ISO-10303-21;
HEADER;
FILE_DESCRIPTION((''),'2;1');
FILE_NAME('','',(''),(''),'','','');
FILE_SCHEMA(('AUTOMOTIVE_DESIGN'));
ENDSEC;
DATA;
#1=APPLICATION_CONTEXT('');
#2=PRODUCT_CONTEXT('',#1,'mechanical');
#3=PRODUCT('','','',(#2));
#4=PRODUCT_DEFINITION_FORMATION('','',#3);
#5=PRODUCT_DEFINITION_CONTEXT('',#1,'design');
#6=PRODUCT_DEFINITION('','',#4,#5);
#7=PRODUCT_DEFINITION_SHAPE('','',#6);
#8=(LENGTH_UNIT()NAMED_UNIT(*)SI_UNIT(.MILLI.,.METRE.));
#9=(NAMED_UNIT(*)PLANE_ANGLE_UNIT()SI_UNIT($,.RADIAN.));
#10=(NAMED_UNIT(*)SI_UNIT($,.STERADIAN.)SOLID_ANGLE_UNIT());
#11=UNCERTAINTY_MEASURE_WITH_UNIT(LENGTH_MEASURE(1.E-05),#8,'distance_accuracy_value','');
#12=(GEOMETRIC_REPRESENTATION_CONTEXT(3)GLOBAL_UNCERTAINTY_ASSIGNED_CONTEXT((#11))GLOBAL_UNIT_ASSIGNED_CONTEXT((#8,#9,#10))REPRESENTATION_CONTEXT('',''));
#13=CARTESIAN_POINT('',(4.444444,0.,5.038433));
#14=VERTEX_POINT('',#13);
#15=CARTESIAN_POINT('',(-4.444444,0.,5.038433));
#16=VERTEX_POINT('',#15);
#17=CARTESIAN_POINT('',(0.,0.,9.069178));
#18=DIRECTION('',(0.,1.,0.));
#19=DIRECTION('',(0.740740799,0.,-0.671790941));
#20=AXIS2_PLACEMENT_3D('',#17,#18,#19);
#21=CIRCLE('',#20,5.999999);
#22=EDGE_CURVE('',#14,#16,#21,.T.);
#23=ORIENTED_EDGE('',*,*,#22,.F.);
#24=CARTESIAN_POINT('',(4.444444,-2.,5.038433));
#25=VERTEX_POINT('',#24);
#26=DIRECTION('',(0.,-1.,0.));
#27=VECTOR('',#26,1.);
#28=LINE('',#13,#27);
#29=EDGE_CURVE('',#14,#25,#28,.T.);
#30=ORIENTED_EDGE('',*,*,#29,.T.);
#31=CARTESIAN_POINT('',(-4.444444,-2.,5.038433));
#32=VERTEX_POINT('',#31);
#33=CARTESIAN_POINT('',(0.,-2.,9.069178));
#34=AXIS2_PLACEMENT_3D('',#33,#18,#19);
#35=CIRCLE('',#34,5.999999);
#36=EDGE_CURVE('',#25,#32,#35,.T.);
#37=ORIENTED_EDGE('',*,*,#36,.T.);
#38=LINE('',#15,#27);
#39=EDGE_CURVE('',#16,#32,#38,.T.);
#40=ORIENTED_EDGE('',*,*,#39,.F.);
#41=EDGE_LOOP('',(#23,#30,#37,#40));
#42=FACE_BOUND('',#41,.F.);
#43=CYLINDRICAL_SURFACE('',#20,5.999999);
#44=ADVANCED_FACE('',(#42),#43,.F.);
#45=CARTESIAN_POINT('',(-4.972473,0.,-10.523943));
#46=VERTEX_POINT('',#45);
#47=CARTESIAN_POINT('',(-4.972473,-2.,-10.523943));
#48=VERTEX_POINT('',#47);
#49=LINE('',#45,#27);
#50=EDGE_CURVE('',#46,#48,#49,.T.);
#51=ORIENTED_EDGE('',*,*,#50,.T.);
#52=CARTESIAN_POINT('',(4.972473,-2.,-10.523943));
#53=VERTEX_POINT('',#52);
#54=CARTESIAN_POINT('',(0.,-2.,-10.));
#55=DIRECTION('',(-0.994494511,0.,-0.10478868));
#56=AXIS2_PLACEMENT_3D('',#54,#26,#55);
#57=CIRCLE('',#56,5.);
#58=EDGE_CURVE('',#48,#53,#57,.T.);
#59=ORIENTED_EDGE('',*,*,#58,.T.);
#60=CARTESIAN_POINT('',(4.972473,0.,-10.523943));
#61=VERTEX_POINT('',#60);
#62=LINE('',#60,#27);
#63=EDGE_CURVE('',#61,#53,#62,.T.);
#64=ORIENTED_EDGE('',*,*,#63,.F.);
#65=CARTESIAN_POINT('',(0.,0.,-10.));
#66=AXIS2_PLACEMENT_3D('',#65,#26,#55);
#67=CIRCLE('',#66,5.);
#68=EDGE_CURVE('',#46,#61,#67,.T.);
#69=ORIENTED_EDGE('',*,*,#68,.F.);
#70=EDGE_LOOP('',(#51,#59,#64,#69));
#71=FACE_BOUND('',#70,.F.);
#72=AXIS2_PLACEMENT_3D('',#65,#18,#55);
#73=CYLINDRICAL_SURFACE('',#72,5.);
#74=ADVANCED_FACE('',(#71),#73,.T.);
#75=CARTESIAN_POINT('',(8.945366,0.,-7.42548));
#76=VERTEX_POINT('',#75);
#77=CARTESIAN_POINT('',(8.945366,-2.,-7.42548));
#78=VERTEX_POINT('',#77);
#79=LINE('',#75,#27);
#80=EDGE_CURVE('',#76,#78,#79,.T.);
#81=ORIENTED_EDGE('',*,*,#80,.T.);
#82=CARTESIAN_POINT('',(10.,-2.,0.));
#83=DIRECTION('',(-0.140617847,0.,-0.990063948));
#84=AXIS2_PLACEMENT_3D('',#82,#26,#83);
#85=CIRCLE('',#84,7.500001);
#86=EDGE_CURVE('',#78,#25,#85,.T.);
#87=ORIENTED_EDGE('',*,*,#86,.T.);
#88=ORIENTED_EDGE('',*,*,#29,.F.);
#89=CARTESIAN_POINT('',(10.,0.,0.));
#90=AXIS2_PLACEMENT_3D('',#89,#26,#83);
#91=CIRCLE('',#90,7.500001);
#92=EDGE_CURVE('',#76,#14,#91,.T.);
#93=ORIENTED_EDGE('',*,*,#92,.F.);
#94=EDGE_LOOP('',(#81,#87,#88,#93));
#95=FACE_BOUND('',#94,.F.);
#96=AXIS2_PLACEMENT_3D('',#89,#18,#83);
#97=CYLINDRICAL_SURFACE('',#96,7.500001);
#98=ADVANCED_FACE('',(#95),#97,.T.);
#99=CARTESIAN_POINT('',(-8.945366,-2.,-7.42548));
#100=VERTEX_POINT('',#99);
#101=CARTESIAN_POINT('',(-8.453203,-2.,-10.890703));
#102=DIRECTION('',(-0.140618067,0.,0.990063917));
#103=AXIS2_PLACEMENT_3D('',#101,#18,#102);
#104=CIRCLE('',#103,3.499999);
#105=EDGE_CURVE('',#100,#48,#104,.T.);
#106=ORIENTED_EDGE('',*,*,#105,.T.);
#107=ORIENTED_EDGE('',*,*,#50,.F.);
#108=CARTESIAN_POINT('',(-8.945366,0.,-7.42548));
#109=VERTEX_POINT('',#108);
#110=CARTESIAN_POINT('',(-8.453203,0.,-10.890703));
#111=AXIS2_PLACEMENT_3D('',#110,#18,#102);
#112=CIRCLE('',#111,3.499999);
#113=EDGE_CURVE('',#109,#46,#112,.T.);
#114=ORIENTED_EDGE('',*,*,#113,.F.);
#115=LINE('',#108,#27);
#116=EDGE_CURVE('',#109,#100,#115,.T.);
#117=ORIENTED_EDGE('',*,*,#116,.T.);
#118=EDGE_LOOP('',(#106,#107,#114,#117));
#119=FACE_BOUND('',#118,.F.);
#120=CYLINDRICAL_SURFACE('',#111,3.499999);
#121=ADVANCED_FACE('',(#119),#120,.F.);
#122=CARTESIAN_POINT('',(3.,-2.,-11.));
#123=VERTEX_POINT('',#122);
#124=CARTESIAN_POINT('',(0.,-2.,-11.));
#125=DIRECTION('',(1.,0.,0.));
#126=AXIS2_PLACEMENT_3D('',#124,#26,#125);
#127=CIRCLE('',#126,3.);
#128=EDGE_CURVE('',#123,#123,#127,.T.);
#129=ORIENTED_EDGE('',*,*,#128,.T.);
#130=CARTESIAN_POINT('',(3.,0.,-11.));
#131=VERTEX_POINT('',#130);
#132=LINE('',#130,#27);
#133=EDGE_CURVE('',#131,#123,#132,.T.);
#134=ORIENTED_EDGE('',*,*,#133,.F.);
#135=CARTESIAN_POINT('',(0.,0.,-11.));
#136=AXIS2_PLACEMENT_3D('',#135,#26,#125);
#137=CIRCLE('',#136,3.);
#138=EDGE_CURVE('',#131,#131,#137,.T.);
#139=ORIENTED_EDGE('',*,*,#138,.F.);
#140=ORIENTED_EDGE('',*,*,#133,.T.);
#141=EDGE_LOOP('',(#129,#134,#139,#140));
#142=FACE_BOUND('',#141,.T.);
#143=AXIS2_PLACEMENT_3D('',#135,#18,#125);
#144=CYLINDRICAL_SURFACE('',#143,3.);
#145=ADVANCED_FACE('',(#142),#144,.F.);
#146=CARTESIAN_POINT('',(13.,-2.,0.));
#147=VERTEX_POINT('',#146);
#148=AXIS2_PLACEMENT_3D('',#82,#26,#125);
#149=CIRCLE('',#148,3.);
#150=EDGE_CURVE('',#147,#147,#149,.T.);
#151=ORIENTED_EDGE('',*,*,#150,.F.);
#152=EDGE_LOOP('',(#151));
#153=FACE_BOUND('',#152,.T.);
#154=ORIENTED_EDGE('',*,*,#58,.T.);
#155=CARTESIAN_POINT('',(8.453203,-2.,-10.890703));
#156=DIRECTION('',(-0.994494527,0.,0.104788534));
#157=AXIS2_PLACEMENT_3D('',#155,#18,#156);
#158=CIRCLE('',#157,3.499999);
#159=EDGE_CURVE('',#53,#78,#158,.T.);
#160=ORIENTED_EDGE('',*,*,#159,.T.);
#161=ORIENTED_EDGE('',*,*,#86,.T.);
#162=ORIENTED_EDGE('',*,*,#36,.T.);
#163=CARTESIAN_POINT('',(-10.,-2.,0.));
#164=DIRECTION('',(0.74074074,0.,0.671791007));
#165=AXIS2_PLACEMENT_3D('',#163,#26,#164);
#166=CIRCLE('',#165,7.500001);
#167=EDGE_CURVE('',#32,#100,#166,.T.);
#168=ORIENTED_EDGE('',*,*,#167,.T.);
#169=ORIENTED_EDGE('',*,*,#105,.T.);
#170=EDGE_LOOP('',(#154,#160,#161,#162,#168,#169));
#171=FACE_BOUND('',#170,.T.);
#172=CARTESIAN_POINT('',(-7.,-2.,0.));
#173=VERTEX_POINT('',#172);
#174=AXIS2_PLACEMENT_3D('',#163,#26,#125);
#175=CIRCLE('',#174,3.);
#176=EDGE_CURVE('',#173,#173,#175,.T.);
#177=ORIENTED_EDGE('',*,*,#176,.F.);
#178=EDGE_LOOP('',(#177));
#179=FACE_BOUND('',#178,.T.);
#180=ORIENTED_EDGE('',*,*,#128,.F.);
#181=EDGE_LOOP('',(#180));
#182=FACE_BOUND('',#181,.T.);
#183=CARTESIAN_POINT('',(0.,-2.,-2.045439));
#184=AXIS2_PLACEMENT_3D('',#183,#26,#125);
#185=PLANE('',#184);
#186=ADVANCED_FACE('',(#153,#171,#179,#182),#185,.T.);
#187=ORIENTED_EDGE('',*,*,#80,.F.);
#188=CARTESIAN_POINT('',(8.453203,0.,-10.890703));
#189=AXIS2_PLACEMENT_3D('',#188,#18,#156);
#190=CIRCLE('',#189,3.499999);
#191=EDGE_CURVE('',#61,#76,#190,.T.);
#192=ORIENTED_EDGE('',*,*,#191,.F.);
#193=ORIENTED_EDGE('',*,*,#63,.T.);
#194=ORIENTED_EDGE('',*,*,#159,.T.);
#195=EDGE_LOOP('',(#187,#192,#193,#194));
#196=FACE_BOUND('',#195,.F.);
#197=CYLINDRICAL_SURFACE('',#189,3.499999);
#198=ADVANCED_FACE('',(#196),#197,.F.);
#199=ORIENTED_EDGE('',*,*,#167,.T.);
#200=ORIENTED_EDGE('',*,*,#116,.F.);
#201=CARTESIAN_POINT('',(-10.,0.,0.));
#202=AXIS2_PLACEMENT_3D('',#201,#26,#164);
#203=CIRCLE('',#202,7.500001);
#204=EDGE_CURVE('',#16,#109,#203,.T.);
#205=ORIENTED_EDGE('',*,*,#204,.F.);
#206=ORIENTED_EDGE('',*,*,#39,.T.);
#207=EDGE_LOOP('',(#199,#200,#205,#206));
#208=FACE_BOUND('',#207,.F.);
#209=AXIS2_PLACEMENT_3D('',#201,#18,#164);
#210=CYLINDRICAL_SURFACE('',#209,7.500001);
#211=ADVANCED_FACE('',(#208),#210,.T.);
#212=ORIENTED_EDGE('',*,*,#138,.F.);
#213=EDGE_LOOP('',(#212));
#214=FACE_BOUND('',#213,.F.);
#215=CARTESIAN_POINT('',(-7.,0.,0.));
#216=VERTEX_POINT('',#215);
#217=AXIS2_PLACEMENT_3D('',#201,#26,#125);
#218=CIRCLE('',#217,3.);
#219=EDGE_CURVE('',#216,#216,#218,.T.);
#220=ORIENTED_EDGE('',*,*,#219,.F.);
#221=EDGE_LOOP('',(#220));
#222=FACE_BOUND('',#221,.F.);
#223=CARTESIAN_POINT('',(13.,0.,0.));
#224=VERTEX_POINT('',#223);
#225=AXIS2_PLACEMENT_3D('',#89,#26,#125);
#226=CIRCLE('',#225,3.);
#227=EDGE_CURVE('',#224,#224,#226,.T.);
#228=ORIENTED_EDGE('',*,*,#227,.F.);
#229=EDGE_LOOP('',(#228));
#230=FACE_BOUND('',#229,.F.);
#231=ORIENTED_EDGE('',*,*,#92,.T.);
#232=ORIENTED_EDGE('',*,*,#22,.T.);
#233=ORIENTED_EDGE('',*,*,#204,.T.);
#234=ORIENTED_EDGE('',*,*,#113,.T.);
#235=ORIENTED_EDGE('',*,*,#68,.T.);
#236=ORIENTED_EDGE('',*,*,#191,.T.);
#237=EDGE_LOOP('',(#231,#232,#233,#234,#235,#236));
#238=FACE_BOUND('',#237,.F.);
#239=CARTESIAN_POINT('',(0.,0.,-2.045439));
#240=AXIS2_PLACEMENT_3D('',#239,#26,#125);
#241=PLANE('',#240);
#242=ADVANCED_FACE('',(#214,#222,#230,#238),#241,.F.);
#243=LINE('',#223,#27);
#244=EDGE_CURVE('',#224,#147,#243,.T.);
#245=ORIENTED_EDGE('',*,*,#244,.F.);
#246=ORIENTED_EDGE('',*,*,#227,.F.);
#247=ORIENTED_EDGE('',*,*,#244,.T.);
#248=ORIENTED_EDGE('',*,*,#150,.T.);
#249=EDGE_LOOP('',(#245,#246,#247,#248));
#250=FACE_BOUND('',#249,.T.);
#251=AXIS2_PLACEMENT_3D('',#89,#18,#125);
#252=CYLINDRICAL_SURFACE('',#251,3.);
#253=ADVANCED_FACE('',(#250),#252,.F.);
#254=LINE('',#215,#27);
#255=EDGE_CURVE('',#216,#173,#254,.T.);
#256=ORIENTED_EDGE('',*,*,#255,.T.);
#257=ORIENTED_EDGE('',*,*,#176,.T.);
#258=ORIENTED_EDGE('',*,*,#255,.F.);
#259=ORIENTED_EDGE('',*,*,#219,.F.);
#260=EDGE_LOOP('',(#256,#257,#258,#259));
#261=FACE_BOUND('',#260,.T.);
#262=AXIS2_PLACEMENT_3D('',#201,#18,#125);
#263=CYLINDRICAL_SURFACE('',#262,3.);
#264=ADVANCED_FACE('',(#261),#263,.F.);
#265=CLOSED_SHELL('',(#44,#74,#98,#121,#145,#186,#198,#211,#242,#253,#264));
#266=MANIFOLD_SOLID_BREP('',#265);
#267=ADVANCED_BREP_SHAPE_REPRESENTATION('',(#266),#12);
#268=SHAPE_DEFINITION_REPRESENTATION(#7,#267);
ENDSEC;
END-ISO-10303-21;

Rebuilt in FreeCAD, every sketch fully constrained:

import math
import FreeCAD as App
import Part
import Sketcher
Q = App.Units.Quantity

doc = App.newDocument("Part")
body = doc.addObject("PartDesign::Body", "Body")

# Sketch on XZ plane
sketch1 = body.newObject("Sketcher::SketchObject", "Sketch")
sketch1.AttachmentSupport = (doc.getObject("XZ_Plane"), [""])
sketch1.MapMode = "FlatFace"
sketch1.addGeometry(Part.ArcOfCircle(Part.Circle(App.Vector(0, 9.1, 0), App.Vector(0, 0, 1), 6), math.radians(-138), math.radians(-42)), False)
sketch1.addGeometry(Part.ArcOfCircle(Part.Circle(App.Vector(-10, 0, 0), App.Vector(0, 0, 1), 7.5), math.radians(42), math.radians(278)), False)
sketch1.addGeometry(Part.ArcOfCircle(Part.Circle(App.Vector(-8.5, -10.9, 0), App.Vector(0, 0, 1), 3.5), math.radians(6), math.radians(98)), False)
sketch1.addGeometry(Part.ArcOfCircle(Part.Circle(App.Vector(0, -10, 0), App.Vector(0, 0, 1), 5), math.radians(-174), math.radians(-6)), False)
sketch1.addGeometry(Part.ArcOfCircle(Part.Circle(App.Vector(8.5, -10.9, 0), App.Vector(0, 0, 1), 3.5), math.radians(82), math.radians(174)), False)
sketch1.addGeometry(Part.ArcOfCircle(Part.Circle(App.Vector(10, 0, 0), App.Vector(0, 0, 1), 7.5), math.radians(-98), math.radians(138)), False)
sketch1.addGeometry(Part.Circle(App.Vector(0, -11, 0), App.Vector(0, 0, 1), 3), False)
sketch1.addGeometry(Part.Circle(App.Vector(-10, 0, 0), App.Vector(0, 0, 1), 3), False)
sketch1.addGeometry(Part.Circle(App.Vector(10, 0, 0), App.Vector(0, 0, 1), 3), False)
sketch1.addConstraint(Sketcher.Constraint("Tangent", 0, 1, 1, 1))
sketch1.addConstraint(Sketcher.Constraint("Tangent", 1, 2, 2, 2))
sketch1.addConstraint(Sketcher.Constraint("Tangent", 2, 1, 3, 1))
sketch1.addConstraint(Sketcher.Constraint("Tangent", 3, 2, 4, 2))
sketch1.addConstraint(Sketcher.Constraint("Tangent", 4, 1, 5, 1))
sketch1.addConstraint(Sketcher.Constraint("Tangent", 5, 2, 0, 2))
sketch1.addConstraint(Sketcher.Constraint("Coincident", 7, 3, 1, 3))
sketch1.addConstraint(Sketcher.Constraint("Coincident", 8, 3, 5, 3))
sketch1.addConstraint(Sketcher.Constraint("Equal", 2, 4))
sketch1.addConstraint(Sketcher.Constraint("Equal", 1, 5))
sketch1.addConstraint(Sketcher.Constraint("Equal", 6, 7))
sketch1.addConstraint(Sketcher.Constraint("Equal", 7, 8))
sketch1.addConstraint(Sketcher.Constraint("Symmetric", 1, 3, 5, 3, -1, 1))
sketch1.addConstraint(Sketcher.Constraint("Symmetric", 2, 3, 4, 3, -2))
sketch1.addConstraint(Sketcher.Constraint("PointOnObject", 6, 3, -2))
sketch1.addConstraint(Sketcher.Constraint("Diameter", 6, Q("6 mm")))
sketch1.addConstraint(Sketcher.Constraint("Radius", 0, Q("5.999999 mm")))
sketch1.addConstraint(Sketcher.Constraint("Radius", 3, Q("5 mm")))
sketch1.addConstraint(Sketcher.Constraint("Radius", 1, Q("7.500001 mm")))
sketch1.addConstraint(Sketcher.Constraint("Radius", 2, Q("3.499999 mm")))
sketch1.addConstraint(Sketcher.Constraint("DistanceX", 1, 3, -1, 1, Q("10 mm")))
sketch1.addConstraint(Sketcher.Constraint("DistanceY", 3, 3, -1, 1, Q("10 mm")))
sketch1.addConstraint(Sketcher.Constraint("DistanceY", 6, 3, -1, 1, Q("11 mm")))
pad1 = body.newObject("PartDesign::Pad", "Pad")
pad1.Profile = sketch1
pad1.Length = 2

doc.recompute()
